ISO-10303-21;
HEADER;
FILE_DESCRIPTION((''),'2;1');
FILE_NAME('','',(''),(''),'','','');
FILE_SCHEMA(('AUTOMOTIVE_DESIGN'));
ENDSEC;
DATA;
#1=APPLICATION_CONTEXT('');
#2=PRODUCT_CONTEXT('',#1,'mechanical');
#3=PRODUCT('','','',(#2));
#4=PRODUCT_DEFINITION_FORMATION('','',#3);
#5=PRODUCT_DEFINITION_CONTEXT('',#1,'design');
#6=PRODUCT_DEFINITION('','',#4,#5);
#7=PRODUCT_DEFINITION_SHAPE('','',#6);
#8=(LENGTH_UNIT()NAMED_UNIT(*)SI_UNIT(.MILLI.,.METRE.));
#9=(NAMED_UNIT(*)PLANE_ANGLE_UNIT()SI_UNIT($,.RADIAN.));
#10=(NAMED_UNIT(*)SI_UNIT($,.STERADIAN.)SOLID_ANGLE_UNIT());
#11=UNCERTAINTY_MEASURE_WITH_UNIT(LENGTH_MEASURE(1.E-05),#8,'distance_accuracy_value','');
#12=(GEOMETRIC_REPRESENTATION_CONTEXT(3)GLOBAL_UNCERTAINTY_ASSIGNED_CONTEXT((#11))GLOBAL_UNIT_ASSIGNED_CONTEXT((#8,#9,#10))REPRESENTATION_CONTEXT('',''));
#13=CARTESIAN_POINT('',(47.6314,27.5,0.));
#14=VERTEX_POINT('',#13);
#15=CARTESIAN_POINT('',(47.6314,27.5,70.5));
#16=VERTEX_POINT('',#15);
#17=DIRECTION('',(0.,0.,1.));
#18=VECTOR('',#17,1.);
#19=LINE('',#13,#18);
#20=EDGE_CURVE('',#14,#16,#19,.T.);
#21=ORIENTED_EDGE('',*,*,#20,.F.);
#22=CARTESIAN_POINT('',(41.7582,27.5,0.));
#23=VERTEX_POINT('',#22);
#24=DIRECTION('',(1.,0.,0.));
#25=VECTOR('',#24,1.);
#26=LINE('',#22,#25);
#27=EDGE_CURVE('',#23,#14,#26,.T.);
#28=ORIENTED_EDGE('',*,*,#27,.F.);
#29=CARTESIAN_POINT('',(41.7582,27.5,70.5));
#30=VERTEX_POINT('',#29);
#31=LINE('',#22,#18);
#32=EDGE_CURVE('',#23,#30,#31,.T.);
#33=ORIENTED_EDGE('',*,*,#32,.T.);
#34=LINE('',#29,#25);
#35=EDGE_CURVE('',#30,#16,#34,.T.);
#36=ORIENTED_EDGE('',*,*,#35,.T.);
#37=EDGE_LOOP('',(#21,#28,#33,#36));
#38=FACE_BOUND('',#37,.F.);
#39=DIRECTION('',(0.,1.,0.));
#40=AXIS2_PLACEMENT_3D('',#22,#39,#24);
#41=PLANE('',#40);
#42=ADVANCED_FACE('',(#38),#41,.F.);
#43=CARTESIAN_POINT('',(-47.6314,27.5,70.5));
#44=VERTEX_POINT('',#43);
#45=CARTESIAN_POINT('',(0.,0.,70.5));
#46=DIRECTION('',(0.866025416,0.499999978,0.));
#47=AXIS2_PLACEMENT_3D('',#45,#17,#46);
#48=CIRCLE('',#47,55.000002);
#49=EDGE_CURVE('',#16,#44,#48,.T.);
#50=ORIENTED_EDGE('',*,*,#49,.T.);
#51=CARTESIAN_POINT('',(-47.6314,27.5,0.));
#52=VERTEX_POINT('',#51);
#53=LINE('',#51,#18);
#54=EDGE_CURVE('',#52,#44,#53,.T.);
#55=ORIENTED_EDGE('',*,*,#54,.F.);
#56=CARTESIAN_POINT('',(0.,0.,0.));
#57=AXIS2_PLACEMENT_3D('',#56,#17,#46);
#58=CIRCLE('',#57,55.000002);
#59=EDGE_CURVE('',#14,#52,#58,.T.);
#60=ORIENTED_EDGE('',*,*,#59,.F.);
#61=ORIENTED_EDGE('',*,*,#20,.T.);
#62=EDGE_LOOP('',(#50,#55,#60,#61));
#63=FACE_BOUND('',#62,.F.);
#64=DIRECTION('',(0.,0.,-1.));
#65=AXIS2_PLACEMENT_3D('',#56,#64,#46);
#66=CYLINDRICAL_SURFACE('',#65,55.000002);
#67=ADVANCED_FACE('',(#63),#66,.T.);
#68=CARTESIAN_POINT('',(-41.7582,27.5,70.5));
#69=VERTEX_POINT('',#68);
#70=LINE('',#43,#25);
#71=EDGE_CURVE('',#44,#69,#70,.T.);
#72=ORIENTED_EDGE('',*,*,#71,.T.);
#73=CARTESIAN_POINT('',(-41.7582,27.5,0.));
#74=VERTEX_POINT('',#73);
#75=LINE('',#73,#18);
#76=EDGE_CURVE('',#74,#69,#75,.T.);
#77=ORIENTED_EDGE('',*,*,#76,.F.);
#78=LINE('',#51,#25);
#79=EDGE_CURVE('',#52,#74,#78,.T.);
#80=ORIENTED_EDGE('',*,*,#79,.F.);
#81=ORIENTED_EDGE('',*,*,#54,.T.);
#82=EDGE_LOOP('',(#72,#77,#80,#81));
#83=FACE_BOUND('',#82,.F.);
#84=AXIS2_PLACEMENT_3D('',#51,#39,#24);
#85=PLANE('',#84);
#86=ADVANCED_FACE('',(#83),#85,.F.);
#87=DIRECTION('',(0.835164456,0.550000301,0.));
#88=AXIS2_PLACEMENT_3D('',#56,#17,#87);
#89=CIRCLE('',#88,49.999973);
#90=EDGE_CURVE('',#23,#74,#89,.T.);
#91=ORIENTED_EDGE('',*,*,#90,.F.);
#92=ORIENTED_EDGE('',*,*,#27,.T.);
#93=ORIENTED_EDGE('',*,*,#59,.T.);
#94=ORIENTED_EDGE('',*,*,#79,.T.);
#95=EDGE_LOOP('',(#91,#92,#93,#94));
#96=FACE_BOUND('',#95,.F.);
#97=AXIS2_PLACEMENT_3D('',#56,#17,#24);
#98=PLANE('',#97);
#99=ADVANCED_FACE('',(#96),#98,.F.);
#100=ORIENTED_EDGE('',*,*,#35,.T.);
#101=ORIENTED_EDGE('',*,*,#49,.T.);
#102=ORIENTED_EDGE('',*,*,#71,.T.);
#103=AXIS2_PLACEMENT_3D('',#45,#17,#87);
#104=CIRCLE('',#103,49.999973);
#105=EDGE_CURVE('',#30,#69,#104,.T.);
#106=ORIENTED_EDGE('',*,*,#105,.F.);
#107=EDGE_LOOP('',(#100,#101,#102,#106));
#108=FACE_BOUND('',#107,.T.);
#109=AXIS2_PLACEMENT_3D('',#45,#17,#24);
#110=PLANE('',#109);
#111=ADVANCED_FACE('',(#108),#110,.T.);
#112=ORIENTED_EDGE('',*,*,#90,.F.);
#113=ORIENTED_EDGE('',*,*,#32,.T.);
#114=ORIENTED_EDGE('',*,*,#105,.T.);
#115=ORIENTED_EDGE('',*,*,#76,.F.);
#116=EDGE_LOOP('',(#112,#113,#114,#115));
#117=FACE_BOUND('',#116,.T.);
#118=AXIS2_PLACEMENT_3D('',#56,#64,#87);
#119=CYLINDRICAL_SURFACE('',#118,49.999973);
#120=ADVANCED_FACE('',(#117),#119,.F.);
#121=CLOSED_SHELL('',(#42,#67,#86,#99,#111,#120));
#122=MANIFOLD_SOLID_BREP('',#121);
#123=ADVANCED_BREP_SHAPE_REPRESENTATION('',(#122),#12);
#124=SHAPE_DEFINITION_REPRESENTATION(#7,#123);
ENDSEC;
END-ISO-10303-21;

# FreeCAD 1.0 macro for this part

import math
import FreeCAD as App
import Part
import Sketcher

V = App.Vector
Q = App.Units.Quantity

doc = App.newDocument("Part")
body = doc.addObject("PartDesign::Body", "Body")

# Sketch on XY plane
sketch1 = body.newObject("Sketcher::SketchObject", "Sketch")
sketch1.AttachmentSupport = (doc.getObject("XY_Plane"), [""])
sketch1.MapMode = "FlatFace"
sketch1.addGeometry(Part.ArcOfCircle(Part.Circle(V(0, 0, 0), V(0, 0, 1), 55), math.radians(30), math.radians(150)), False)
sketch1.addGeometry(Part.LineSegment(V(-48, 28, 0), V(-42, 28, 0)), False)
sketch1.addGeometry(Part.ArcOfCircle(Part.Circle(V(0, 0, 0), V(0, 0, 1), 50), math.radians(33), math.radians(147)), False)
sketch1.addGeometry(Part.LineSegment(V(42, 28, 0), V(48, 28, 0)), False)
sketch1.addConstraint(Sketcher.Constraint("Coincident", 0, 2, 1, 1))
sketch1.addConstraint(Sketcher.Constraint("Coincident", 1, 2, 2, 2))
sketch1.addConstraint(Sketcher.Constraint("Coincident", 2, 1, 3, 1))
sketch1.addConstraint(Sketcher.Constraint("Coincident", 3, 2, 0, 1))
sketch1.addConstraint(Sketcher.Constraint("Horizontal", 1))
sketch1.addConstraint(Sketcher.Constraint("Horizontal", 3))
sketch1.addConstraint(Sketcher.Constraint("Coincident", 0, 3, -1, 1))
sketch1.addConstraint(Sketcher.Constraint("Coincident", 2, 3, -1, 1))
sketch1.addConstraint(Sketcher.Constraint("Horizontal", 1, 2, 2, 1))
sketch1.addConstraint(Sketcher.Constraint("Radius", 2, Q("1.9685 in")))
sketch1.addConstraint(Sketcher.Constraint("Radius", 0, Q("55 mm")))
sketch1.addConstraint(Sketcher.Constraint("DistanceX", 1, 1, 1, 2, Q("5.8732 mm")))
pad1 = body.newObject("PartDesign::Pad", "Pad")
pad1.Profile = sketch1
pad1.Length = Q("2.7755906 in")

doc.recompute()
